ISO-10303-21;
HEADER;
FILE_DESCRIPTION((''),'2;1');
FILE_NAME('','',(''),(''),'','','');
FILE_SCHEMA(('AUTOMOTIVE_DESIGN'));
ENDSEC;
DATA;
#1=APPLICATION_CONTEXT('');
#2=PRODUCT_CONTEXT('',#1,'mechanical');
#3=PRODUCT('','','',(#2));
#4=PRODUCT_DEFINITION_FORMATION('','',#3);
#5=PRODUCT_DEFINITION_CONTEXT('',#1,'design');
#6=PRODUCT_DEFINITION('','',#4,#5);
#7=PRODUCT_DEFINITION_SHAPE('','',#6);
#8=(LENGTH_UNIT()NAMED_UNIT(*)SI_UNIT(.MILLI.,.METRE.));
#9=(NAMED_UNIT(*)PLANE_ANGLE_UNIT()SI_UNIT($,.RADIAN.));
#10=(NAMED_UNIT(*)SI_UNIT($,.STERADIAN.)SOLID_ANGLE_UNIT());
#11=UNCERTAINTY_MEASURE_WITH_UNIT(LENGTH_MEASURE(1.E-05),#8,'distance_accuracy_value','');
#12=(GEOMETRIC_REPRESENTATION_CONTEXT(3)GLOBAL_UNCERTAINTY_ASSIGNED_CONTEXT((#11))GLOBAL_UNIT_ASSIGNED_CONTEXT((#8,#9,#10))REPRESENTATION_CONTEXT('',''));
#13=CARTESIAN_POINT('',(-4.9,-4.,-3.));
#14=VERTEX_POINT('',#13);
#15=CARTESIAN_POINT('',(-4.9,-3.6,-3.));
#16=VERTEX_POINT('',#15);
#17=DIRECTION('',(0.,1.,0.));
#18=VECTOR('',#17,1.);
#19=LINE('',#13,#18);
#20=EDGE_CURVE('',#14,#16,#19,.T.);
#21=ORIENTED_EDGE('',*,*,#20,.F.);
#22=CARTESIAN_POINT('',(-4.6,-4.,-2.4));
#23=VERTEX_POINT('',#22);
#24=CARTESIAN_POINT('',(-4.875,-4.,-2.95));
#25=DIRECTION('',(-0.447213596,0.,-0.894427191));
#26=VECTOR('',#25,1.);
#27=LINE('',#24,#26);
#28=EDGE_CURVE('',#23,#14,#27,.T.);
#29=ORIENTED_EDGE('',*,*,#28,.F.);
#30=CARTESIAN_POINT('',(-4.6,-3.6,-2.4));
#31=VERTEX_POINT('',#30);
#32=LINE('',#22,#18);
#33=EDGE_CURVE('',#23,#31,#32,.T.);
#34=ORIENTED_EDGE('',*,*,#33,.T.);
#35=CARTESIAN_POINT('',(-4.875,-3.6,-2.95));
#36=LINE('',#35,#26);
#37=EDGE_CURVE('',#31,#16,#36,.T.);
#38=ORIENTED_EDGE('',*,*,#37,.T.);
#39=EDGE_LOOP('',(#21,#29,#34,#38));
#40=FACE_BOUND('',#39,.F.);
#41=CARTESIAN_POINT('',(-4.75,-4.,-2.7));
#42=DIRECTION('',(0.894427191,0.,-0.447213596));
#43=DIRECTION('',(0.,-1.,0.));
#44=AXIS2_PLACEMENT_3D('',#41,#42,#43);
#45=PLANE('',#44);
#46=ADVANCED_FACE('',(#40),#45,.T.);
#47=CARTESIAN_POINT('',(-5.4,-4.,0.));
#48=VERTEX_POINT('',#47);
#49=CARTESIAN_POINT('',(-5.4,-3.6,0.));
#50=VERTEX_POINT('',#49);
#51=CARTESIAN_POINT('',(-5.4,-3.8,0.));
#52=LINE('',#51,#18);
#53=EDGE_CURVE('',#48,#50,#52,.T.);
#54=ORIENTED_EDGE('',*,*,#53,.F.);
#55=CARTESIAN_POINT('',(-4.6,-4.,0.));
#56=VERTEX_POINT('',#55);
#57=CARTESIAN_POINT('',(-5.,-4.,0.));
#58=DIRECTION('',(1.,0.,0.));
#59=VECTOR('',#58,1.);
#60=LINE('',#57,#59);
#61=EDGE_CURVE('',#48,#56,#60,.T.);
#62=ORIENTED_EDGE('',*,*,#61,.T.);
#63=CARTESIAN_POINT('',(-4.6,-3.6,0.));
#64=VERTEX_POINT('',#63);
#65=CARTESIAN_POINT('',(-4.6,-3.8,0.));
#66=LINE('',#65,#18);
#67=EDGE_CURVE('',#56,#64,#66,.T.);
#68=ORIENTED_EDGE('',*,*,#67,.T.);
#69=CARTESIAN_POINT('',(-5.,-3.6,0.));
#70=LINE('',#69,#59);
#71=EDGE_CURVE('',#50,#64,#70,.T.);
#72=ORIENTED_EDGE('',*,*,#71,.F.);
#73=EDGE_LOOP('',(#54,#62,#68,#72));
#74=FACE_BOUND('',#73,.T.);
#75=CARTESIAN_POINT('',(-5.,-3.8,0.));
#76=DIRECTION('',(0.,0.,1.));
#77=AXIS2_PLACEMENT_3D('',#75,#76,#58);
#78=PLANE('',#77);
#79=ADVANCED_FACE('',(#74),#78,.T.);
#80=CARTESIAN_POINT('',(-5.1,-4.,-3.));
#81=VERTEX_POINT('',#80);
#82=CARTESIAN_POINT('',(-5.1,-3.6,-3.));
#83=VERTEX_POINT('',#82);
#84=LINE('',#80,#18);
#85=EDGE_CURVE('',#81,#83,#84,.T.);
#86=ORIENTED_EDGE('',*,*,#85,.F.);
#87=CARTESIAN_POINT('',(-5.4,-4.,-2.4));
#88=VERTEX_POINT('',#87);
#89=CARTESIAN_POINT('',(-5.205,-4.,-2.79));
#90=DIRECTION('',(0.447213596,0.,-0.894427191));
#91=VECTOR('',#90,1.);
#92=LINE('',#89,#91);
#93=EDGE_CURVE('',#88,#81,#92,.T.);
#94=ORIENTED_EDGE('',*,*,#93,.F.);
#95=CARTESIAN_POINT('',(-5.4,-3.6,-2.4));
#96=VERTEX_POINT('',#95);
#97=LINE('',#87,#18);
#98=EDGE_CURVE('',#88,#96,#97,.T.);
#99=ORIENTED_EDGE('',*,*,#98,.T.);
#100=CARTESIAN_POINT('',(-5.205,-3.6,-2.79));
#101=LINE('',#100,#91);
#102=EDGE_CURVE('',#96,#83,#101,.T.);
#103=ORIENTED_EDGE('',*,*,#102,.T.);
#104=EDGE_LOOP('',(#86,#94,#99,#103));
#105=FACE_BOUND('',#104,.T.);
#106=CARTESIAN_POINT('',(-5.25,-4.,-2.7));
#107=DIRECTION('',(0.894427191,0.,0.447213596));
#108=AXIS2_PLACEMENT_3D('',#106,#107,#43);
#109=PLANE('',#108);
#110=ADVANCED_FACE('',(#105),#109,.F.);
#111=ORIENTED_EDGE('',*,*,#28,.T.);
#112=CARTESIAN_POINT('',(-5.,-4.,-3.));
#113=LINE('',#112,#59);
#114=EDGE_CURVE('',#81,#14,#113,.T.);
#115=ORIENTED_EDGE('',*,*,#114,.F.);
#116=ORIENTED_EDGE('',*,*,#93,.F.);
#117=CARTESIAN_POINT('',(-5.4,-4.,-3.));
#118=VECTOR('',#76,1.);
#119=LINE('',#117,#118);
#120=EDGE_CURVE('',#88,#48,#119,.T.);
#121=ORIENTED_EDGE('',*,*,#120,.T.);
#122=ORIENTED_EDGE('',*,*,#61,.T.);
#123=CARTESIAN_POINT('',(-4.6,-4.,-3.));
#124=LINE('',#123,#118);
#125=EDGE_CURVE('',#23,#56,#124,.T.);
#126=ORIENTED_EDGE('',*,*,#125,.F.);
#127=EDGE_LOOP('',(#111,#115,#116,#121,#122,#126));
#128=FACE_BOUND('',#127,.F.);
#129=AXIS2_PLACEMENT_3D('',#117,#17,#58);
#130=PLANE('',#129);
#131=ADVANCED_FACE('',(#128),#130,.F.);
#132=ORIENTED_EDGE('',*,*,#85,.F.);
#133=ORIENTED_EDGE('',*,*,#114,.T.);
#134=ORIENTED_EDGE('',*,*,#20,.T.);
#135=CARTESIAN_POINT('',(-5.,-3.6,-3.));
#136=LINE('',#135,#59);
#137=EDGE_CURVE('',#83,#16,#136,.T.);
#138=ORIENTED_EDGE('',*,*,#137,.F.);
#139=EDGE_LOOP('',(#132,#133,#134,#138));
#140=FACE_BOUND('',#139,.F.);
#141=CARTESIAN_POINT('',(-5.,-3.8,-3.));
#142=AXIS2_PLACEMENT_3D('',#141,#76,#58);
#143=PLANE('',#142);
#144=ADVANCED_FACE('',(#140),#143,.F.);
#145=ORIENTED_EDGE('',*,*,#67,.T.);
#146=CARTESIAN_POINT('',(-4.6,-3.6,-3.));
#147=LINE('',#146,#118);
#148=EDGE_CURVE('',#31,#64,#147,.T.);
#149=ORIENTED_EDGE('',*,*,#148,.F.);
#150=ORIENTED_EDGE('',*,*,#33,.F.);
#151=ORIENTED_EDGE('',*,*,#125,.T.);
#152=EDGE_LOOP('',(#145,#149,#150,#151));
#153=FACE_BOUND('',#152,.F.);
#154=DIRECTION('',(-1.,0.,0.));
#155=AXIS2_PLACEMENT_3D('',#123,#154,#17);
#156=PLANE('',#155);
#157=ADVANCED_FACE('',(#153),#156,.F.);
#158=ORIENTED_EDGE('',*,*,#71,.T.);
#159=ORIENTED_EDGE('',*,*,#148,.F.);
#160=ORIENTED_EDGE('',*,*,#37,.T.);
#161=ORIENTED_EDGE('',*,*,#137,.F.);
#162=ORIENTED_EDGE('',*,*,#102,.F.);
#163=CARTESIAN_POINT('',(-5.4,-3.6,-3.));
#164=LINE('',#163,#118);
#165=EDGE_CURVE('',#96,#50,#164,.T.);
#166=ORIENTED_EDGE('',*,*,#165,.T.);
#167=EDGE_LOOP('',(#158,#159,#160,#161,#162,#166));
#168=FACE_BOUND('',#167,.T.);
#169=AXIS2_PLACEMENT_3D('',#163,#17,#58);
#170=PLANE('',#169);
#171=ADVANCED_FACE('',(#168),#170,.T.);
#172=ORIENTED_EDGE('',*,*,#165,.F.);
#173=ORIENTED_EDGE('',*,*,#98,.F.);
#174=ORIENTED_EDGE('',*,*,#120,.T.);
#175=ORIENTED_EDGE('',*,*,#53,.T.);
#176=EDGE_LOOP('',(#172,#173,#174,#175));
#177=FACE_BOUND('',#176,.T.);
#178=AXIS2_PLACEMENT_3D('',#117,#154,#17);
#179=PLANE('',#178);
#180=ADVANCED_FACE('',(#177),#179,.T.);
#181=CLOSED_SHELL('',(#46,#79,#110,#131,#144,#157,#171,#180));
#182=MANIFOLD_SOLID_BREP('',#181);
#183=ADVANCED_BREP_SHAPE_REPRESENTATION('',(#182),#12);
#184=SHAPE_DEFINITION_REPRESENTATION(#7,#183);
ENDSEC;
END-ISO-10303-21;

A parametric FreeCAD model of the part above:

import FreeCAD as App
import Part
import Sketcher
Q = App.Units.Quantity


def edges_at(feature, points):
    """Names of the edges that pass closest to the given points."""
    edges = feature.Shape.Edges
    near = lambda p: min(range(len(edges)), key=lambda i: edges[i].distToShape(Part.Vertex(*p))[0])
    return sorted({f"Edge{near(p) + 1}" for p in points})


def add_polygon(sketch, points):
    """Adds a closed chain of lines whose ends are joined by coincident constraints."""
    first, n = sketch.GeometryCount, len(points)
    for a, b in zip(points, points[1:] + points[:1]):
        sketch.addGeometry(Part.LineSegment(App.Vector(*a, 0), App.Vector(*b, 0)), False)
    for i in range(n):
        sketch.addConstraint(Sketcher.Constraint("Coincident", first + i, 2, first + (i + 1) % n, 1))

doc = App.newDocument("Part")
body = doc.addObject("PartDesign::Body", "Body")

sketch1 = body.newObject("Sketcher::SketchObject", "Sketch")
sketch1.AttachmentSupport = (doc.getObject("XY_Plane"), [""])
sketch1.MapMode = "FlatFace"
sketch1.AttachmentOffset = App.Placement(App.Vector(0, 0, -3), App.Rotation())
add_polygon(sketch1, [(-5.4, -3.6), (-5.4, -4), (-4.6, -4), (-4.6, -3.6)])
sketch1.addConstraint([
    Sketcher.Constraint("Vertical", 0),
    Sketcher.Constraint("Horizontal", 1),
    Sketcher.Constraint("Vertical", 2),
    Sketcher.Constraint("Horizontal", 3),
    Sketcher.Constraint("DistanceX", 1, 1, 1, 2, Q("0.8 mm")),
    Sketcher.Constraint("DistanceY", 0, 2, 0, 1, Q("0.4 mm")),
    Sketcher.Constraint("DistanceY", 0, 2, -1, 1, Q("4 mm")),
    Sketcher.Constraint("DistanceX", 0, 2, -1, 1, Q("5.4 mm")),
])
pad1 = body.newObject("PartDesign::Pad", "Pad")
pad1.Profile = sketch1
pad1.Length = 3
doc.recompute()

chamfer = body.newObject("PartDesign::Chamfer", "Chamfer")
chamfer.Base = (pad1, edges_at(pad1, [(-4.6, -3.8, -3)]))
chamfer.ChamferType = "Two distances"
chamfer.Size = 0.6
chamfer.Size2 = 0.3
doc.recompute()

chamfer2 = body.newObject("PartDesign::Chamfer", "Chamfer001")
chamfer2.Base = (chamfer, edges_at(chamfer, [(-5.4, -3.8, -3)]))
chamfer2.ChamferType = "Two distances"
chamfer2.Size = 0.6
chamfer2.Size2 = 0.3
chamfer2.FlipDirection = True

doc.recompute()
